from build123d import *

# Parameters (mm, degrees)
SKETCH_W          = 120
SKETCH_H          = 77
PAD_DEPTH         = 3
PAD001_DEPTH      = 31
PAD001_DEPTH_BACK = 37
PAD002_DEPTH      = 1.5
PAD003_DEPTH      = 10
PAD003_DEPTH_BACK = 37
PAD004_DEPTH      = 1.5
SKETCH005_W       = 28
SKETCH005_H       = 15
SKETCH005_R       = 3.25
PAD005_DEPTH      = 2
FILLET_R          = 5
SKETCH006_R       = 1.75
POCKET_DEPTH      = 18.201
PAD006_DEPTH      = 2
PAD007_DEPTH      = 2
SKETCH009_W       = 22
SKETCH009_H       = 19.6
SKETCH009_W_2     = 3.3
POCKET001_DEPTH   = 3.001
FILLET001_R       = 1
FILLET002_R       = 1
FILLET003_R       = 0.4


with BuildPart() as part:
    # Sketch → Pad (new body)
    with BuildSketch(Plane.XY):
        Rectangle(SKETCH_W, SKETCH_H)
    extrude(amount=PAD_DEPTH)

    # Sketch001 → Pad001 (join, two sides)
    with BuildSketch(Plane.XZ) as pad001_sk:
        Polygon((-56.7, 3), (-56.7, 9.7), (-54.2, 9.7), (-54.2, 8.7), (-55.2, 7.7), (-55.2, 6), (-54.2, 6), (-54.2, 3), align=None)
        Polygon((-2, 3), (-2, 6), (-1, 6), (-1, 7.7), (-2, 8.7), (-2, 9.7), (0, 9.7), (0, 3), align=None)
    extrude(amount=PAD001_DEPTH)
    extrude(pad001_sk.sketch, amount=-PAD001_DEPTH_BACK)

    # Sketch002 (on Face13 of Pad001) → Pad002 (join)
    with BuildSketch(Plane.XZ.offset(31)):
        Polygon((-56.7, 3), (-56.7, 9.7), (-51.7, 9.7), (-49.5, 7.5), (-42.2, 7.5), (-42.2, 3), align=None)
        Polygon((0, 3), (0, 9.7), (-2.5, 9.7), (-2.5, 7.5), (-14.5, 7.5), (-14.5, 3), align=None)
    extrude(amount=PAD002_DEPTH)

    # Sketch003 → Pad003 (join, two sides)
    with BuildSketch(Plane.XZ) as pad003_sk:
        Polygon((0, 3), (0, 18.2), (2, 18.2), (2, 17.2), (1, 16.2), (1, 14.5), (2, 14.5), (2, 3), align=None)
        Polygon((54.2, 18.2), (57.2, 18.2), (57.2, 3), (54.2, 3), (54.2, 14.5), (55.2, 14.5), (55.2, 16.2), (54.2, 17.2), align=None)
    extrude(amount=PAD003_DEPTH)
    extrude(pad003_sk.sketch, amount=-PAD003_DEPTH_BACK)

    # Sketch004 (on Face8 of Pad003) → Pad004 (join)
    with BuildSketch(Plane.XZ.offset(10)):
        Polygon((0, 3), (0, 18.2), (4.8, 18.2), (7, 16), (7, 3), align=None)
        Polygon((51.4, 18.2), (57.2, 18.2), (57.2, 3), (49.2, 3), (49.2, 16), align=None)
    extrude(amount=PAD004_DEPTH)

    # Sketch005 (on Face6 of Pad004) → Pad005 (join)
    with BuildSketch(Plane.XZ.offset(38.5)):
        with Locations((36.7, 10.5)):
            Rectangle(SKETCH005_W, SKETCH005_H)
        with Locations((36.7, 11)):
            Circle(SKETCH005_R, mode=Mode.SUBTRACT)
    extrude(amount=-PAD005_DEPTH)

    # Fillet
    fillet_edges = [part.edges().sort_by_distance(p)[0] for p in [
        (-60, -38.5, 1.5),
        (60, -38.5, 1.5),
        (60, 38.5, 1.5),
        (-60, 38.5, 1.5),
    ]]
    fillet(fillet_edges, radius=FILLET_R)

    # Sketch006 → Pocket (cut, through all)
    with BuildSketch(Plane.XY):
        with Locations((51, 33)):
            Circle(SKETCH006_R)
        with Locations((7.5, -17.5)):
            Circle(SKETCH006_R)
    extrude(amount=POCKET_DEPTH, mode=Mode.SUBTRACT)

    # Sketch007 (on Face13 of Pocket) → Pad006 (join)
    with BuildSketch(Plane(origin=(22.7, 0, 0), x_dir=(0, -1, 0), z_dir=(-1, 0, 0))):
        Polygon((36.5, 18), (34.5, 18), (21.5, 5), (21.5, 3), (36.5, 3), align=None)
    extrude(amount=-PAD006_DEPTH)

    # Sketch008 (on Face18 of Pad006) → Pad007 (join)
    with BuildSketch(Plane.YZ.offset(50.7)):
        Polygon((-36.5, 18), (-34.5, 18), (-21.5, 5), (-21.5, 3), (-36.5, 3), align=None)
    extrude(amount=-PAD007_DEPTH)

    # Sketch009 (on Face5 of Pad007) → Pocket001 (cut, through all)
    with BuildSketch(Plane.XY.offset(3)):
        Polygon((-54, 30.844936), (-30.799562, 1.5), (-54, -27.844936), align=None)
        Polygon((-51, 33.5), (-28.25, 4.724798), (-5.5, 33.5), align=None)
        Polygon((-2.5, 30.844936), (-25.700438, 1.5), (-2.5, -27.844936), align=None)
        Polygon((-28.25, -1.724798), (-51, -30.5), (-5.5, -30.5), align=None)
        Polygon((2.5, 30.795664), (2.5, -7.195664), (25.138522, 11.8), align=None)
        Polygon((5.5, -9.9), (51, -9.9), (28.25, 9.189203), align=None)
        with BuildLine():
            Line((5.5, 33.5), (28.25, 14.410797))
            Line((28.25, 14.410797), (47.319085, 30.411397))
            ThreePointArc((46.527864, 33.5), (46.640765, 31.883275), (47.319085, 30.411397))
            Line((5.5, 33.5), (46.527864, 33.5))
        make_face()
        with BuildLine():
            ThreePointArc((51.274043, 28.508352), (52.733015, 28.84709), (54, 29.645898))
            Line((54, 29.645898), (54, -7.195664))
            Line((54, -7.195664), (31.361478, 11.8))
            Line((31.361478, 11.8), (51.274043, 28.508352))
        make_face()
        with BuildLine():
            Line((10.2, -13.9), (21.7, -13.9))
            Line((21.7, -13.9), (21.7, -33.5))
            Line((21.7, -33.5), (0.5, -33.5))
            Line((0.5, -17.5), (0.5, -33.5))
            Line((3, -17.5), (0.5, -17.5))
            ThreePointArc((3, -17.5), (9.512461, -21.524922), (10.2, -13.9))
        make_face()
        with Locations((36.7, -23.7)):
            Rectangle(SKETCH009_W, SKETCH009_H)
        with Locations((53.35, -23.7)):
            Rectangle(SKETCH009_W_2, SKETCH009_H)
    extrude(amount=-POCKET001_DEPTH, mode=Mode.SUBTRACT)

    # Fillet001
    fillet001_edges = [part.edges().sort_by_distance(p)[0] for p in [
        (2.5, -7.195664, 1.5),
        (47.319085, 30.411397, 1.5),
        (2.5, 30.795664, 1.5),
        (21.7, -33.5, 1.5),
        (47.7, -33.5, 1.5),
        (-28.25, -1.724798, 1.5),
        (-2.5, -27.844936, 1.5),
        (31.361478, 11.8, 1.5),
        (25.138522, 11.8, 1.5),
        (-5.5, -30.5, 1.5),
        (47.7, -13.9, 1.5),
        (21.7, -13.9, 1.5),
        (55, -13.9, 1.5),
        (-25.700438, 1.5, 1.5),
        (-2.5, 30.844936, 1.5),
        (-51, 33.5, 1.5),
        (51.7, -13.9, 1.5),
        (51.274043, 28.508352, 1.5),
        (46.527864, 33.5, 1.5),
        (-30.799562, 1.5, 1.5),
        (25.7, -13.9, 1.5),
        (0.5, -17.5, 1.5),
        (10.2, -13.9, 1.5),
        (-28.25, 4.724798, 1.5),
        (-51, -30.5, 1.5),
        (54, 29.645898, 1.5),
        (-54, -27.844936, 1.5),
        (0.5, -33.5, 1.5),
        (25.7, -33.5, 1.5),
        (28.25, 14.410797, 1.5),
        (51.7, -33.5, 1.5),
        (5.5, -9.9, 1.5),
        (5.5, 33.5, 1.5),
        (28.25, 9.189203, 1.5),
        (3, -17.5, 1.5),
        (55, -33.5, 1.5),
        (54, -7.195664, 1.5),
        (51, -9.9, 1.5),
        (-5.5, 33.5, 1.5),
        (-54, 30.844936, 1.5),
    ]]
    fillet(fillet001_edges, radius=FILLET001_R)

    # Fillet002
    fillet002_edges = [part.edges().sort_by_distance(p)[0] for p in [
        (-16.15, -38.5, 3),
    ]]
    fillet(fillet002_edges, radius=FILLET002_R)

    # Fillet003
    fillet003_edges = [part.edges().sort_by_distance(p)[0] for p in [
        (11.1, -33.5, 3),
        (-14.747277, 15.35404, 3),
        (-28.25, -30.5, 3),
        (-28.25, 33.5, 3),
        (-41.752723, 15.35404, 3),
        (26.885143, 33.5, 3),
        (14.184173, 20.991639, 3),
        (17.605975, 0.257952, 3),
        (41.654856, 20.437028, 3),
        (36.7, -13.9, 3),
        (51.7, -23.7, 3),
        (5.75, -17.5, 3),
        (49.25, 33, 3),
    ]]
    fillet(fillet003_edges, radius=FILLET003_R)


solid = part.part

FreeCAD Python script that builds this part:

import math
import FreeCAD as App
import Part
import Sketcher
Q = App.Units.Quantity


def edges_at(feature, points):
    """Names of the edges that pass closest to the given points."""
    edges = feature.Shape.Edges
    near = lambda p: min(range(len(edges)), key=lambda i: edges[i].distToShape(Part.Vertex(*p))[0])
    return sorted({f"Edge{near(p) + 1}" for p in points})


def add_polygon(sketch, points):
    """Adds a closed chain of lines whose ends are joined by coincident constraints."""
    first, n = sketch.GeometryCount, len(points)
    for a, b in zip(points, points[1:] + points[:1]):
        sketch.addGeometry(Part.LineSegment(App.Vector(*a, 0), App.Vector(*b, 0)), False)
    for i in range(n):
        sketch.addConstraint(Sketcher.Constraint("Coincident", first + i, 2, first + (i + 1) % n, 1))

doc = App.newDocument("Part")
params = doc.addObject("Spreadsheet::Sheet", "Params")
for row, (alias, value) in enumerate([
    ("sketch1_width", "120 mm"),
    ("sketch1_height", "77 mm"),
    ("pad1_length", "3 mm"),
    ("sketch2_width", "1 mm"),
    ("sketch2_width2", "2 mm"),
    ("sketch2_height", "3 mm"),
    ("sketch2_width3", "2.5 mm"),
    ("sketch2_height2", "6.7 mm"),
    ("pad2_length", "31 mm"),
    ("pad2_length2", "37 mm"),
    ("sketch3_width", "5 mm"),
    ("sketch3_width2", "12 mm"),
    ("sketch3_width3", "14.5 mm"),
    ("sketch3_width4", "7.3 mm"),
    ("sketch3_height", "6.7 mm"),
    ("pad3_length", "1.5 mm"),
    ("sketch4_width", "2 mm"),
    ("sketch4_width2", "1 mm"),
    ("sketch4_width3", "3 mm"),
    ("sketch4_height", "15.2 mm"),
    ("sketch4_height2", "11.5 mm"),
    ("pad4_length", "10 mm"),
    ("pad4_length2", "37 mm"),
    ("sketch5_width", "7 mm"),
    ("sketch5_width2", "8 mm"),
    ("sketch5_height", "13 mm"),
    ("sketch5_width3", "4.8 mm"),
    ("pad5_length", "1.5 mm"),
    ("sketch6_diameter", "6.5 mm"),
    ("sketch6_width", "28 mm"),
    ("sketch6_height", "15 mm"),
    ("pad6_length", "2 mm"),
    ("fillet_radius", "5 mm"),
    ("sketch7_diameter", "3.5 mm"),
    ("sketch8_width", "2 mm"),
    ("sketch8_width2", "15 mm"),
    ("pad7_length", "2 mm"),
    ("sketch9_width", "2 mm"),
    ("sketch9_width2", "15 mm"),
    ("pad8_length", "2 mm"),
    ("sketch10_radius", "4.5 mm"),
    ("sketch10_width", "22 mm"),
    ("sketch10_height", "16 mm"),
    ("sketch10_width2", "45.5 mm"),
    ("sketch10_width3", "11.5 mm"),
    ("fillet2_radius", "1 mm"),
    ("fillet3_radius", "1 mm"),
    ("fillet4_radius", "0.4 mm"),
], start=1):
    params.set(f"A{row}", alias)
    params.set(f"B{row}", "=" + value)
    params.setAlias(f"B{row}", alias)

body = doc.addObject("PartDesign::Body", "Body")

# Sketch on XY plane
sketch1 = doc.addObject("Sketcher::SketchObject", "Sketch")
body.addObject(sketch1)
sketch1.AttachmentSupport = (doc.XY_Plane, [""])
sketch1.MapMode = "FlatFace"
add_polygon(sketch1, [(-60, 38), (-60, -38), (60, -38), (60, 38)])  # lines 0-3
sketch1.addConstraint([
    Sketcher.Constraint("Vertical", 0),
    Sketcher.Constraint("Horizontal", 1),
    Sketcher.Constraint("Vertical", 2),
    Sketcher.Constraint("Horizontal", 3),
    Sketcher.Constraint("Symmetric", 0, 2, 2, 2, -1, 1),
    Sketcher.Constraint("DistanceX", 1, 1, 1, 2, 120.0),
    Sketcher.Constraint("DistanceY", 0, 2, 0, 1, 77.0),
])
sketch1.setExpression("Constraints[9]", "Params.sketch1_width")
sketch1.setExpression("Constraints[10]", "Params.sketch1_height")
pad1 = doc.addObject("PartDesign::Pad", "Pad")
body.addObject(pad1)
pad1.Profile = sketch1
pad1.setExpression("Length", "Params.pad1_length")

# Sketch on XZ plane
sketch2 = doc.addObject("Sketcher::SketchObject", "Sketch001")
body.addObject(sketch2)
sketch2.AttachmentSupport = (doc.XZ_Plane, [""])
sketch2.MapMode = "FlatFace"
add_polygon(sketch2, [(-56.7, 9.7), (-56.7, 3), (-54.2, 3), (-54.2, 6), (-55.2, 6), (-55.2, 7.7), (-54.2, 8.7), (-54.2, 9.7)])  # lines 0-7
add_polygon(sketch2, [(-2, 6), (-2, 3), (0, 3), (0, 9.7), (-2, 9.7), (-2, 8.7), (-1, 7.7), (-1, 6)])  # lines 8-15
sketch2.addConstraint([
    Sketcher.Constraint("Vertical", 0),
    Sketcher.Constraint("Horizontal", 1),
    Sketcher.Constraint("Vertical", 2),
    Sketcher.Constraint("Horizontal", 3),
    Sketcher.Constraint("Vertical", 4),
    Sketcher.Constraint("Vertical", 6),
    Sketcher.Constraint("Horizontal", 7),
    Sketcher.Constraint("Vertical", 8),
    Sketcher.Constraint("Horizontal", 9),
    Sketcher.Constraint("Vertical", 10),
    Sketcher.Constraint("Horizontal", 11),
    Sketcher.Constraint("Vertical", 12),
    Sketcher.Constraint("Vertical", 14),
    Sketcher.Constraint("Horizontal", 15),
    Sketcher.Constraint("PointOnObject", 9, 2, -2),
    Sketcher.Constraint("Perpendicular", 5, 13),
    Sketcher.Constraint("Horizontal", 1, 2, 8, 2),
    Sketcher.Constraint("Horizontal", 7, 2, 10, 2),
    Sketcher.Constraint("Horizontal", 5, 2, 12, 2),
    Sketcher.Constraint("Horizontal", 4, 2, 13, 2),
    Sketcher.Constraint("Horizontal", 3, 2, 14, 2),
    Sketcher.Constraint("Vertical", 2, 2, 5, 2),
    Sketcher.Constraint("Vertical", 8, 2, 11, 2),
    Sketcher.Constraint("Equal", 3, 15),
    Sketcher.Constraint("Equal", 15, 6),
    Sketcher.Constraint("DistanceX", 3, 2, 3, 1, 1.0),
    Sketcher.Constraint("DistanceX", 9, 1, 9, 2, 2.0),
    Sketcher.Constraint("DistanceY", 2, 1, 2, 2, 3.0),
    Sketcher.Constraint("DistanceX", 1, 1, 1, 2, 2.5),
    Sketcher.Constraint("DistanceY", 0, 2, 0, 1, 6.7),
    Sketcher.Constraint("DistanceY", -1, 1, 0, 2, 3.0),
    Sketcher.Constraint("DistanceX", 0, 2, -1, 1, 56.7),
])
sketch2.setExpression("Constraints[41]", "Params.sketch2_width")
sketch2.setExpression("Constraints[42]", "Params.sketch2_width2")
sketch2.setExpression("Constraints[43]", "Params.sketch2_height")
sketch2.setExpression("Constraints[44]", "Params.sketch2_width3")
sketch2.setExpression("Constraints[45]", "Params.sketch2_height2")
pad2 = doc.addObject("PartDesign::Pad", "Pad001")
body.addObject(pad2)
pad2.Profile = sketch2
pad2.Type = "TwoLengths"
pad2.setExpression("Length", "Params.pad2_length")
pad2.setExpression("Length2", "Params.pad2_length2")

# Sketch on XZ plane
sketch3 = doc.addObject("Sketcher::SketchObject", "Sketch002")
body.addObject(sketch3)
sketch3.AttachmentSupport = (doc.XZ_Plane, [""])
sketch3.MapMode = "FlatFace"
sketch3.AttachmentOffset = App.Placement(App.Vector(0, 0, 31), App.Rotation())
add_polygon(sketch3, [(-56.7, 9.7), (-56.7, 3), (-42.2, 3), (-42.2, 7.5), (-49.5, 7.5), (-51.7, 9.7)])  # lines 0-5
add_polygon(sketch3, [(0, 3), (0, 9.7), (-2.5, 9.7), (-2.5, 7.5), (-14.5, 7.5), (-14.5, 3)])  # lines 6-11
sketch3.addConstraint([
    Sketcher.Constraint("Vertical", 0),
    Sketcher.Constraint("Horizontal", 1),
    Sketcher.Constraint("Vertical", 2),
    Sketcher.Constraint("Horizontal", 3),
    Sketcher.Constraint("Horizontal", 5),
    Sketcher.Constraint("Vertical", 6),
    Sketcher.Constraint("Horizontal", 7),
    Sketcher.Constraint("Vertical", 8),
    Sketcher.Constraint("Horizontal", 9),
    Sketcher.Constraint("Vertical", 10),
    Sketcher.Constraint("Horizontal", 11),
    Sketcher.Constraint("PointOnObject", 6, 2, -2),
    Sketcher.Constraint("Horizontal", 5, 2, 6, 2),
    Sketcher.Constraint("Horizontal", 3, 2, 8, 2),
    Sketcher.Constraint("Horizontal", 1, 2, 10, 2),
    Sketcher.Constraint("Equal", 1, 11),
    Sketcher.Constraint("DistanceX", 5, 2, 5, 1, 5.0),
    Sketcher.Constraint("DistanceX", 9, 2, 9, 1, 12.0),
    Sketcher.Constraint("Angle", 4, Q("135 deg")),
    Sketcher.Constraint("DistanceX", 1, 1, 1, 2, 14.5),
    Sketcher.Constraint("DistanceX", 3, 2, 3, 1, 7.3),
    Sketcher.Constraint("DistanceY", 0, 2, 0, 1, 6.7),
    Sketcher.Constraint("DistanceY", -1, 1, 0, 2, 3.0),
    Sketcher.Constraint("DistanceX", 3, 2, 7, 2, 47.0),
])
sketch3.setExpression("Constraints[28]", "Params.sketch3_width")
sketch3.setExpression("Constraints[29]", "Params.sketch3_width2")
sketch3.setExpression("Constraints[31]", "Params.sketch3_width3")
sketch3.setExpression("Constraints[32]", "Params.sketch3_width4")
sketch3.setExpression("Constraints[33]", "Params.sketch3_height")
pad3 = doc.addObject("PartDesign::Pad", "Pad002")
body.addObject(pad3)
pad3.Profile = sketch3
pad3.setExpression("Length", "Params.pad3_length")

# Sketch on XZ plane
sketch4 = doc.addObject("Sketcher::SketchObject", "Sketch003")
body.addObject(sketch4)
sketch4.AttachmentSupport = (doc.XZ_Plane, [""])
sketch4.MapMode = "FlatFace"
add_polygon(sketch4, [(0, 18.2), (0, 3), (2, 3), (2, 14.5), (1, 14.5), (1, 16.2), (2, 17.2), (2, 18.2)])  # lines 0-7
add_polygon(sketch4, [(57.2, 18.2), (54.2, 18.2), (54.2, 17.2), (55.2, 16.2), (55.2, 14.5), (54.2, 14.5), (54.2, 3), (57.2, 3)])  # lines 8-15
sketch4.addConstraint([
    Sketcher.Constraint("Vertical", 0),
    Sketcher.Constraint("Horizontal", 1),
    Sketcher.Constraint("Vertical", 2),
    Sketcher.Constraint("Horizontal", 3),
    Sketcher.Constraint("Vertical", 4),
    Sketcher.Constraint("Vertical", 6),
    Sketcher.Constraint("Horizontal", 7),
    Sketcher.Constraint("Horizontal", 8),
    Sketcher.Constraint("Vertical", 9),
    Sketcher.Constraint("Vertical", 11),
    Sketcher.Constraint("Horizontal", 12),
    Sketcher.Constraint("Vertical", 13),
    Sketcher.Constraint("Horizontal", 14),
    Sketcher.Constraint("Vertical", 15),
    Sketcher.Constraint("PointOnObject", 0, 2, -2),
    Sketcher.Constraint("Perpendicular", 5, 10),
    Sketcher.Constraint("Horizontal", 7, 2, 8, 2),
    Sketcher.Constraint("Horizontal", 5, 2, 9, 2),
    Sketcher.Constraint("Horizontal", 4, 2, 10, 2),
    Sketcher.Constraint("Horizontal", 3, 2, 11, 2),
    Sketcher.Constraint("Horizontal", 1, 2, 13, 2),
    Sketcher.Constraint("Vertical", 2, 2, 5, 2),
    Sketcher.Constraint("Vertical", 9, 2, 12, 2),
    Sketcher.Constraint("Equal", 3, 12),
    Sketcher.Constraint("Equal", 12, 6),
    Sketcher.Constraint("DistanceX", 1, 1, 1, 2, 2.0),
    Sketcher.Constraint("DistanceX", 3, 2, 3, 1, 1.0),
    Sketcher.Constraint("DistanceX", 8, 2, 8, 1, 3.0),
    Sketcher.Constraint("DistanceY", 0, 2, 0, 1, 15.2),
    Sketcher.Constraint("DistanceY", 2, 1, 2, 2, 11.5),
    Sketcher.Constraint("DistanceY", -1, 1, 0, 2, 3.0),
    Sketcher.Constraint("DistanceX", -1, 1, 8, 2, 54.2),
])
sketch4.setExpression("Constraints[41]", "Params.sketch4_width")
sketch4.setExpression("Constraints[42]", "Params.sketch4_width2")
sketch4.setExpression("Constraints[43]", "Params.sketch4_width3")
sketch4.setExpression("Constraints[44]", "Params.sketch4_height")
sketch4.setExpression("Constraints[45]", "Params.sketch4_height2")
pad4 = doc.addObject("PartDesign::Pad", "Pad003")
body.addObject(pad4)
pad4.Profile = sketch4
pad4.Type = "TwoLengths"
pad4.setExpression("Length", "Params.pad4_length")
pad4.setExpression("Length2", "Params.pad4_length2")

# Sketch on XZ plane
sketch5 = doc.addObject("Sketcher::SketchObject", "Sketch004")
body.addObject(sketch5)
sketch5.AttachmentSupport = (doc.XZ_Plane, [""])
sketch5.MapMode = "FlatFace"
sketch5.AttachmentOffset = App.Placement(App.Vector(0, 0, 10), App.Rotation())
add_polygon(sketch5, [(0, 18.2), (0, 3), (7, 3), (7, 16), (4.8, 18.2)])  # lines 0-4
add_polygon(sketch5, [(57.2, 18.2), (51.4, 18.2), (49.2, 16), (49.2, 3), (57.2, 3)])  # lines 5-9
sketch5.addConstraint([
    Sketcher.Constraint("Vertical", 0),
    Sketcher.Constraint("Horizontal", 1),
    Sketcher.Constraint("Vertical", 2),
    Sketcher.Constraint("Horizontal", 4),
    Sketcher.Constraint("Horizontal", 5),
    Sketcher.Constraint("Vertical", 7),
    Sketcher.Constraint("Horizontal", 8),
    Sketcher.Constraint("Vertical", 9),
    Sketcher.Constraint("PointOnObject", 0, 2, -2),
    Sketcher.Constraint("Perpendicular", 3, 6),
    Sketcher.Constraint("Horizontal", 4, 2, 5, 2),
    Sketcher.Constraint("Horizontal", 2, 2, 6, 2),
    Sketcher.Constraint("Horizontal", 1, 2, 7, 2),
    Sketcher.Constraint("Equal", 3, 6),
    Sketcher.Constraint("DistanceX", 1, 1, 1, 2, 7.0),
    Sketcher.Constraint("DistanceX", 8, 1, 8, 2, 8.0),
    Sketcher.Constraint("DistanceY", 2, 1, 2, 2, 13.0),
    Sketcher.Constraint("DistanceX", 4, 2, 4, 1, 4.8),
    Sketcher.Constraint("DistanceY", -1, 1, 0, 2, 3.0),
    Sketcher.Constraint("DistanceX", -1, 1, 5, 2, 51.4),
])
sketch5.setExpression("Constraints[24]", "Params.sketch5_width")
sketch5.setExpression("Constraints[25]", "Params.sketch5_width2")
sketch5.setExpression("Constraints[26]", "Params.sketch5_height")
sketch5.setExpression("Constraints[27]", "Params.sketch5_width3")
pad5 = doc.addObject("PartDesign::Pad", "Pad004")
body.addObject(pad5)
pad5.Profile = sketch5
pad5.setExpression("Length", "Params.pad5_length")

# Sketch on XZ plane
sketch6 = doc.addObject("Sketcher::SketchObject", "Sketch005")
body.addObject(sketch6)
sketch6.AttachmentSupport = (doc.XZ_Plane, [""])
sketch6.MapMode = "FlatFace"
sketch6.AttachmentOffset = App.Placement(App.Vector(0, 0, 38.5), App.Rotation())
add_polygon(sketch6, [(22.7, 18), (22.7, 3), (50.7, 3), (50.7, 18)])  # lines 0-3
sketch6.addGeometry(Part.Circle(App.Vector(36.7, 11, 0), App.Vector(0, 0, 1), 3.2), False)  # 4
sketch6.addConstraint([
    Sketcher.Constraint("Vertical", 0),
    Sketcher.Constraint("Horizontal", 1),
    Sketcher.Constraint("Vertical", 2),
    Sketcher.Constraint("Horizontal", 3),
    Sketcher.Constraint("Diameter", 4, 6.5),
    Sketcher.Constraint("DistanceX", 1, 1, 1, 2, 28.0),
    Sketcher.Constraint("DistanceY", 0, 2, 0, 1, 15.0),
    Sketcher.Constraint("DistanceY", -1, 1, 4, 3, 11.0),
    Sketcher.Constraint("DistanceY", -1, 1, 0, 2, 3.0),
    Sketcher.Constraint("DistanceX", 0, 2, 4, 3, 14.0),
    Sketcher.Constraint("DistanceX", -1, 1, 4, 3, 36.7),
])
sketch6.setExpression("Constraints[8]", "Params.sketch6_diameter")
sketch6.setExpression("Constraints[9]", "Params.sketch6_width")
sketch6.setExpression("Constraints[10]", "Params.sketch6_height")
pad6 = doc.addObject("PartDesign::Pad", "Pad005")
body.addObject(pad6)
pad6.Profile = sketch6
pad6.setExpression("Length", "Params.pad6_length")
pad6.Reversed = True
doc.recompute()

fillet = doc.addObject("PartDesign::Fillet", "Fillet")
body.addObject(fillet)
fillet.Base = (pad6, edges_at(pad6, [
    (-60, -38.5, 1.5),
    (60, -38.5, 1.5),
    (60, 38.5, 1.5),
    (-60, 38.5, 1.5),
]))
fillet.setExpression("Radius", "Params.fillet_radius")

# Sketch on XY plane
sketch7 = doc.addObject("Sketcher::SketchObject", "Sketch006")
body.addObject(sketch7)
sketch7.AttachmentSupport = (doc.XY_Plane, [""])
sketch7.MapMode = "FlatFace"
sketch7.addGeometry([
    Part.Circle(App.Vector(51, 33, 0), App.Vector(0, 0, 1), 1.8),
    Part.Circle(App.Vector(7.5, -17.5, 0), App.Vector(0, 0, 1), 1.8),
], False)
sketch7.addConstraint([
    Sketcher.Constraint("Equal", 0, 1),
    Sketcher.Constraint("Diameter", 0, 3.5),
    Sketcher.Constraint("DistanceX", -1, 1, 0, 3, 51.0),
    Sketcher.Constraint("DistanceY", -1, 1, 0, 3, 33.0),
    Sketcher.Constraint("DistanceX", -1, 1, 1, 3, 7.5),
    Sketcher.Constraint("DistanceY", 1, 3, -1, 1, 17.5),
])
sketch7.setExpression("Constraints[1]", "Params.sketch7_diameter")
pocket1 = doc.addObject("PartDesign::Pocket", "Pocket")
body.addObject(pocket1)
pocket1.Profile = sketch7
pocket1.Type = "ThroughAll"
pocket1.Reversed = True

# Sketch on YZ plane
sketch8 = doc.addObject("Sketcher::SketchObject", "Sketch007")
body.addObject(sketch8)
sketch8.AttachmentSupport = (doc.YZ_Plane, [""])
sketch8.MapMode = "FlatFace"
sketch8.AttachmentOffset = App.Placement(App.Vector(0, 0, 22.7), App.Rotation())
add_polygon(sketch8, [(-36.5, 18), (-34.5, 18), (-21.5, 5), (-21.5, 3), (-36.5, 3)])  # lines 0-4
sketch8.addConstraint([
    Sketcher.Constraint("Horizontal", 0),
    Sketcher.Constraint("Vertical", 2),
    Sketcher.Constraint("Horizontal", 3),
    Sketcher.Constraint("Vertical", 4),
    Sketcher.Constraint("Equal", 0, 2),
    Sketcher.Constraint("Equal", 3, 4),
    Sketcher.Constraint("DistanceX", 0, 1, 0, 2, 2.0),
    Sketcher.Constraint("DistanceX", 3, 2, 3, 1, 15.0),
    Sketcher.Constraint("DistanceY", -1, 1, 0, 2, 18.0),
    Sketcher.Constraint("DistanceX", 0, 2, -1, 1, 34.5),
])
sketch8.setExpression("Constraints[11]", "Params.sketch8_width")
sketch8.setExpression("Constraints[12]", "Params.sketch8_width2")
pad7 = doc.addObject("PartDesign::Pad", "Pad006")
body.addObject(pad7)
pad7.Profile = sketch8
pad7.setExpression("Length", "Params.pad7_length")

# Sketch on YZ plane
sketch9 = doc.addObject("Sketcher::SketchObject", "Sketch008")
body.addObject(sketch9)
sketch9.AttachmentSupport = (doc.YZ_Plane, [""])
sketch9.MapMode = "FlatFace"
sketch9.AttachmentOffset = App.Placement(App.Vector(0, 0, 50.7), App.Rotation())
add_polygon(sketch9, [(-34.5, 18), (-36.5, 18), (-36.5, 3), (-21.5, 3), (-21.5, 5)])  # lines 0-4
sketch9.addConstraint([
    Sketcher.Constraint("Horizontal", 0),
    Sketcher.Constraint("Vertical", 1),
    Sketcher.Constraint("Horizontal", 2),
    Sketcher.Constraint("Vertical", 3),
    Sketcher.Constraint("Equal", 2, 1),
    Sketcher.Constraint("Equal", 0, 3),
    Sketcher.Constraint("DistanceX", 0, 2, 0, 1, 2.0),
    Sketcher.Constraint("DistanceX", 2, 1, 2, 2, 15.0),
    Sketcher.Constraint("DistanceY", -1, 1, 0, 2, 18.0),
    Sketcher.Constraint("DistanceX", 0, 2, -1, 1, 36.5),
])
sketch9.setExpression("Constraints[11]", "Params.sketch9_width")
sketch9.setExpression("Constraints[12]", "Params.sketch9_width2")
pad8 = doc.addObject("PartDesign::Pad", "Pad007")
body.addObject(pad8)
pad8.Profile = sketch9
pad8.setExpression("Length", "Params.pad8_length")
pad8.Reversed = True

# Sketch on XY plane
sketch10 = doc.addObject("Sketcher::SketchObject", "Sketch009")
body.addObject(sketch10)
sketch10.AttachmentSupport = (doc.XY_Plane, [""])
sketch10.MapMode = "FlatFace"
sketch10.AttachmentOffset = App.Placement(App.Vector(0, 0, 3), App.Rotation())
add_polygon(sketch10, [(-30.8, 1.5), (-54, 30.8), (-54, -27.8)])  # lines 0-2
add_polygon(sketch10, [(-51, 33.5), (-28.2, 4.7), (-5.5, 33.5)])  # lines 3-5
add_polygon(sketch10, [(-2.5, 30.8), (-25.7, 1.5), (-2.5, -27.8)])  # lines 6-8
add_polygon(sketch10, [(-28.2, -1.7), (-51, -30.5), (-5.5, -30.5)])  # lines 9-11
add_polygon(sketch10, [(2.5, 30.8), (2.5, -7.2), (25.1, 11.8)])  # lines 12-14
add_polygon(sketch10, [(5.5, -9.9), (51, -9.9), (28.2, 9.2)])  # lines 15-17
sketch10.addGeometry(Part.LineSegment(App.Vector(5.5, 33.5, 0), App.Vector(28.2, 14.4, 0)), False)  # 18
sketch10.addGeometry(Part.LineSegment(App.Vector(28.2, 14.4, 0), App.Vector(47.3, 30.4, 0)), False)  # 19
sketch10.addGeometry(Part.ArcOfCircle(Part.Circle(App.Vector(51, 33, 0), App.Vector(0, 0, 1), 4.5), math.radians(174), math.radians(215)), False)  # 20
sketch10.addGeometry(Part.LineSegment(App.Vector(46.5, 33.5, 0), App.Vector(5.5, 33.5, 0)), False)  # 21
sketch10.addGeometry(Part.ArcOfCircle(Part.Circle(App.Vector(51, 33, 0), App.Vector(0, 0, 1), 4.5), math.radians(-87), math.radians(-48)), False)  # 22
sketch10.addGeometry(Part.LineSegment(App.Vector(51.3, 28.5, 0), App.Vector(31.4, 11.8, 0)), False)  # 23
sketch10.addGeometry(Part.LineSegment(App.Vector(31.4, 11.8, 0), App.Vector(54, -7.2, 0)), False)  # 24
sketch10.addGeometry(Part.LineSegment(App.Vector(54, -7.2, 0), App.Vector(54, 29.6, 0)), False)  # 25
sketch10.addGeometry(Part.LineSegment(App.Vector(21.7, -13.9, 0), App.Vector(10.2, -13.9, 0)), False)  # 26
sketch10.addGeometry(Part.ArcOfCircle(Part.Circle(App.Vector(7.5, -17.5, 0), App.Vector(0, 0, 1), 4.5), math.radians(-180), math.radians(53)), False)  # 27
sketch10.addGeometry(Part.LineSegment(App.Vector(3, -17.5, 0), App.Vector(0.5, -17.5, 0)), False)  # 28
sketch10.addGeometry(Part.LineSegment(App.Vector(0.5, -17.5, 0), App.Vector(0.5, -33.5, 0)), False)  # 29
sketch10.addGeometry(Part.LineSegment(App.Vector(0.5, -33.5, 0), App.Vector(21.7, -33.5, 0)), False)  # 30
sketch10.addGeometry(Part.LineSegment(App.Vector(21.7, -33.5, 0), App.Vector(21.7, -13.9, 0)), False)  # 31
add_polygon(sketch10, [(25.7, -13.9), (25.7, -33.5), (47.7, -33.5), (47.7, -13.9)])  # lines 32-35
add_polygon(sketch10, [(51.7, -13.9), (51.7, -33.5), (55, -33.5), (55, -13.9)])  # lines 36-39
sketch10.addConstraint([
    Sketcher.Constraint("Coincident", 18, 2, 19, 1),
    Sketcher.Constraint("Coincident", 19, 2, 20, 2),
    Sketcher.Constraint("Coincident", 20, 1, 21, 1),
    Sketcher.Constraint("Coincident", 21, 2, 18, 1),
    Sketcher.Constraint("Coincident", 22, 1, 23, 1),
    Sketcher.Constraint("Coincident", 23, 2, 24, 1),
    Sketcher.Constraint("Coincident", 24, 2, 25, 1),
    Sketcher.Constraint("Coincident", 25, 2, 22, 2),
    Sketcher.Constraint("Coincident", 26, 2, 27, 2),
    Sketcher.Constraint("Coincident", 27, 1, 28, 1),
    Sketcher.Constraint("Coincident", 28, 2, 29, 1),
    Sketcher.Constraint("Coincident", 29, 2, 30, 1),
    Sketcher.Constraint("Coincident", 30, 2, 31, 1),
    Sketcher.Constraint("Coincident", 31, 2, 26, 1),
    Sketcher.Constraint("Vertical", 1),
    Sketcher.Constraint("Horizontal", 5),
    Sketcher.Constraint("Vertical", 8),
    Sketcher.Constraint("Horizontal", 10),
    Sketcher.Constraint("Vertical", 12),
    Sketcher.Constraint("Horizontal", 15),
    Sketcher.Constraint("Horizontal", 21),
    Sketcher.Constraint("Vertical", 25),
    Sketcher.Constraint("Horizontal", 26),
    Sketcher.Constraint("Horizontal", 28),
    Sketcher.Constraint("Vertical", 29),
    Sketcher.Constraint("Horizontal", 30),
    Sketcher.Constraint("Vertical", 31),
    Sketcher.Constraint("Vertical", 32),
    Sketcher.Constraint("Horizontal", 33),
    Sketcher.Constraint("Vertical", 34),
    Sketcher.Constraint("Horizontal", 35),
    Sketcher.Constraint("Vertical", 36),
    Sketcher.Constraint("Horizontal", 37),
    Sketcher.Constraint("Vertical", 38),
    Sketcher.Constraint("Horizontal", 39),
    Sketcher.Constraint("Coincident", 22, 3, 20, 3),
    Sketcher.Constraint("Symmetric", 4, 2, 21, 2, -2),
    Sketcher.Constraint("Parallel", 0, 3),
    Sketcher.Constraint("Parallel", 2, 4),
    Sketcher.Constraint("Parallel", 4, 6),
    Sketcher.Constraint("Parallel", 3, 7),
    Sketcher.Constraint("Parallel", 6, 9),
    Sketcher.Constraint("Parallel", 7, 11),
    Sketcher.Constraint("Parallel", 14, 16),
    Sketcher.Constraint("Parallel", 13, 17),
    Sketcher.Constraint("Parallel", 16, 18),
    Sketcher.Constraint("Parallel", 17, 19),
    Sketcher.Constraint("Parallel", 19, 23),
    Sketcher.Constraint("Parallel", 18, 24),
    Sketcher.Constraint("Horizontal", 2, 2, 6, 2),
    Sketcher.Constraint("Horizontal", 1, 2, 7, 2),
    Sketcher.Constraint("Horizontal", 0, 2, 8, 2),
    Sketcher.Constraint("Horizontal", 13, 2, 23, 2),
    Sketcher.Constraint("Horizontal", 12, 2, 24, 2),
    Sketcher.Constraint("Horizontal", 30, 2, 32, 2),
    Sketcher.Constraint("Horizontal", 31, 2, 34, 2),
    Sketcher.Constraint("Horizontal", 33, 2, 36, 2),
    Sketcher.Constraint("Horizontal", 35, 2, 38, 2),
    Sketcher.Constraint("Vertical", 5, 2, 9, 2),
    Sketcher.Constraint("Vertical", 4, 2, 10, 2),
    Sketcher.Constraint("Vertical", 22, 3, 15, 2),
    Sketcher.Constraint("Vertical", 16, 2, 18, 2),
    Sketcher.Constraint("Vertical", 17, 2, 21, 2),
    Sketcher.Constraint("Equal", 10, 15),
    Sketcher.Constraint("Equal", 13, 14),
    Sketcher.Constraint("Radius", 27, 4.5),
    Sketcher.Constraint("DistanceX", 33, 1, 33, 2, 22.0),
    Sketcher.Constraint("DistanceY", 29, 2, 29, 1, 16.0),
    Sketcher.Constraint("DistanceX", 5, 2, 5, 1, 45.5),
    Sketcher.Constraint("DistanceX", 26, 2, 26, 1, 11.5),
    Sketcher.Constraint("DistanceX", 28, 2, 28, 1, 2.5),
    Sketcher.Constraint("DistanceX", 30, 1, 30, 2, 21.2),
    Sketcher.Constraint("DistanceX", 37, 1, 37, 2, 3.3),
    Sketcher.Constraint("DistanceY", 31, 1, 31, 2, 19.6),
    Sketcher.Constraint("DistanceY", -1, 1, 20, 3, 32.999998),
    Sketcher.Constraint("DistanceX", -1, 1, 22, 3, 51.000001),
    Sketcher.Constraint("DistanceX", 0, 2, -1, 1, 54.0),
    Sketcher.Constraint("DistanceX", -1, 1, 24, 2, 54.0),
    Sketcher.Constraint("DistanceX", -1, 1, 27, 1, 3.0),
    Sketcher.Constraint("DistanceX", -1, 1, 37, 2, 55.0),
    Sketcher.Constraint("DistanceY", 27, 3, 2, 2, 19.0),
    Sketcher.Constraint("DistanceY", 2, 2, 4, 2, 32.0),
    Sketcher.Constraint("DistanceX", 7, 2, 27, 3, 10.0),
    Sketcher.Constraint("DistanceY", 9, 2, 2, 2, 32.0),
    Sketcher.Constraint("DistanceX", 12, 2, 27, 3, 5.0),
    Sketcher.Constraint("DistanceY", 26, 2, 17, 2, 4.0),
    Sketcher.Constraint("DistanceX", 30, 2, 32, 2, 4.0),
    Sketcher.Constraint("DistanceY", 27, 3, -1, 1, 17.5),
    Sketcher.Constraint("DistanceY", -1, 1, 13, 2, 11.8),
    Sketcher.Constraint("Radius", 20, 4.499994),
    Sketcher.Constraint("Radius", 22, 4.499997),
    Sketcher.Constraint("DistanceY", 25, 1, 25, 2, 36.841562),
    Sketcher.Constraint("DistanceY", 3, 2, 20, 3, 28.2752),
    Sketcher.Constraint("DistanceY", 18, 2, 20, 3, 18.589201),
    Sketcher.Constraint("DistanceY", 1, 2, 1, 1, 58.689872),
])
sketch10.setExpression("Constraints[91]", "Params.sketch10_radius")
sketch10.setExpression("Constraints[92]", "Params.sketch10_width")
sketch10.setExpression("Constraints[93]", "Params.sketch10_height")
sketch10.setExpression("Constraints[94]", "Params.sketch10_width2")
sketch10.setExpression("Constraints[95]", "Params.sketch10_width3")
pocket2 = doc.addObject("PartDesign::Pocket", "Pocket001")
body.addObject(pocket2)
pocket2.Profile = sketch10
pocket2.Type = "ThroughAll"
doc.recompute()

fillet2 = doc.addObject("PartDesign::Fillet", "Fillet001")
body.addObject(fillet2)
fillet2.Base = (pocket2, edges_at(pocket2, [
    (2.5, -7.196, 1.5),
    (47.319, 30.411, 1.5),
    (2.5, 30.796, 1.5),
    (21.7, -33.5, 1.5),
    (47.7, -33.5, 1.5),
    (-28.25, -1.725, 1.5),
    (-2.5, -27.845, 1.5),
    (31.361, 11.8, 1.5),
    (25.139, 11.8, 1.5),
    (-5.5, -30.5, 1.5),
    (47.7, -13.9, 1.5),
    (21.7, -13.9, 1.5),
    (55, -13.9, 1.5),
    (-25.7, 1.5, 1.5),
    (-2.5, 30.845, 1.5),
    (-51, 33.5, 1.5),
    (51.7, -13.9, 1.5),
    (51.274, 28.508, 1.5),
    (46.528, 33.5, 1.5),
    (-30.8, 1.5, 1.5),
    (25.7, -13.9, 1.5),
    (0.5, -17.5, 1.5),
    (10.2, -13.9, 1.5),
    (-28.25, 4.725, 1.5),
    (-51, -30.5, 1.5),
    (54, 29.646, 1.5),
    (-54, -27.845, 1.5),
    (0.5, -33.5, 1.5),
    (25.7, -33.5, 1.5),
    (28.25, 14.411, 1.5),
    (51.7, -33.5, 1.5),
    (5.5, -9.9, 1.5),
    (5.5, 33.5, 1.5),
    (28.25, 9.189, 1.5),
    (3, -17.5, 1.5),
    (55, -33.5, 1.5),
    (54, -7.196, 1.5),
    (51, -9.9, 1.5),
    (-5.5, 33.5, 1.5),
    (-54, 30.845, 1.5),
]))
fillet2.setExpression("Radius", "Params.fillet2_radius")
doc.recompute()

fillet3 = doc.addObject("PartDesign::Fillet", "Fillet002")
body.addObject(fillet3)
fillet3.Base = (fillet2, edges_at(fillet2, [(-16.15, -38.5, 3)]))
fillet3.setExpression("Radius", "Params.fillet3_radius")
doc.recompute()

fillet4 = doc.addObject("PartDesign::Fillet", "Fillet003")
body.addObject(fillet4)
fillet4.Base = (fillet3, edges_at(fillet3, [
    (11.1, -33.5, 3),
    (-14.747, 15.354, 3),
    (-28.25, -30.5, 3),
    (-28.25, 33.5, 3),
    (-41.753, 15.354, 3),
    (26.885, 33.5, 3),
    (14.184, 20.992, 3),
    (17.606, 0.258, 3),
    (41.655, 20.437, 3),
    (36.7, -13.9, 3),
    (51.7, -23.7, 3),
    (5.75, -17.5, 3),
    (49.25, 33, 3),
]))
fillet4.setExpression("Radius", "Params.fillet4_radius")

doc.recompute()
